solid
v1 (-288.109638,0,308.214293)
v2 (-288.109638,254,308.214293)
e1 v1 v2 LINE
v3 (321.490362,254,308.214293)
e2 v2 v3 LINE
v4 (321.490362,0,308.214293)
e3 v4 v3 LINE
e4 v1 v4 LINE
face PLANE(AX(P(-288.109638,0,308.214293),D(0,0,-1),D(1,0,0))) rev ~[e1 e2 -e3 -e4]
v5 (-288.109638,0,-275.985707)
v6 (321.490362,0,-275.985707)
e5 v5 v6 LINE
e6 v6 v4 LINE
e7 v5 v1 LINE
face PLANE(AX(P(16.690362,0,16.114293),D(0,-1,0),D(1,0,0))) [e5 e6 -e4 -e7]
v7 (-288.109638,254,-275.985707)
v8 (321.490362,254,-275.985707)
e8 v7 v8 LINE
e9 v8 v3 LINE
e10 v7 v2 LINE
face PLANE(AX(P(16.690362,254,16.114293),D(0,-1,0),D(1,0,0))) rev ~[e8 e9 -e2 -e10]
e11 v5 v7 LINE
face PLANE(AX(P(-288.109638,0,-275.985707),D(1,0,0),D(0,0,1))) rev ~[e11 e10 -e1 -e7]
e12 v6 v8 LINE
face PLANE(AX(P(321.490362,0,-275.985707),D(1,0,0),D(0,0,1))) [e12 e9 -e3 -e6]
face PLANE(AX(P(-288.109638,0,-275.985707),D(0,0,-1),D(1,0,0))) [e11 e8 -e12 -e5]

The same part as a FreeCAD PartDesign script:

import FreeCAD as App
import Part
import Sketcher
from FreeCAD import Vector
Q = App.Units.Quantity


def add_polygon(sketch, points):
    """Adds a closed chain of lines whose ends are joined by coincident constraints."""
    first, n = sketch.GeometryCount, len(points)
    for a, b in zip(points, points[1:] + points[:1]):
        sketch.addGeometry(Part.LineSegment(App.Vector(*a, 0), App.Vector(*b, 0)), False)
    for i in range(n):
        sketch.addConstraint(Sketcher.Constraint("Coincident", first + i, 2, first + (i + 1) % n, 1))

doc = App.newDocument("Part")
body = doc.addObject("PartDesign::Body", "Body")

# Sketch on XZ plane
sketch1 = body.newObject("Sketcher::SketchObject", "Sketch")
sketch1.AttachmentSupport = (doc.getObject("XZ_Plane"), [""])
sketch1.MapMode = "FlatFace"
add_polygon(sketch1, [(-288, 308), (-288, -276), (321, -276), (321, 308)])  # lines 0-3
sketch1.addConstraint([
    Sketcher.Constraint("Vertical", 0),
    Sketcher.Constraint("Horizontal", 1),
    Sketcher.Constraint("Vertical", 2),
    Sketcher.Constraint("Horizontal", 3),
    Sketcher.Constraint("DistanceX", 1, 1, 1, 2, Q("24 in")),
    Sketcher.Constraint("DistanceY", 0, 2, 0, 1, Q("23 in")),
    Sketcher.Constraint("DistanceX", 0, 2, -1, 1, 288.109638),
    Sketcher.Constraint("DistanceY", 0, 2, -1, 1, 275.985707),
])
pad1 = body.newObject("PartDesign::Pad", "Pad")
pad1.Profile = sketch1
pad1.Length = Q("10 in")
pad1.Reversed = True

doc.recompute()
